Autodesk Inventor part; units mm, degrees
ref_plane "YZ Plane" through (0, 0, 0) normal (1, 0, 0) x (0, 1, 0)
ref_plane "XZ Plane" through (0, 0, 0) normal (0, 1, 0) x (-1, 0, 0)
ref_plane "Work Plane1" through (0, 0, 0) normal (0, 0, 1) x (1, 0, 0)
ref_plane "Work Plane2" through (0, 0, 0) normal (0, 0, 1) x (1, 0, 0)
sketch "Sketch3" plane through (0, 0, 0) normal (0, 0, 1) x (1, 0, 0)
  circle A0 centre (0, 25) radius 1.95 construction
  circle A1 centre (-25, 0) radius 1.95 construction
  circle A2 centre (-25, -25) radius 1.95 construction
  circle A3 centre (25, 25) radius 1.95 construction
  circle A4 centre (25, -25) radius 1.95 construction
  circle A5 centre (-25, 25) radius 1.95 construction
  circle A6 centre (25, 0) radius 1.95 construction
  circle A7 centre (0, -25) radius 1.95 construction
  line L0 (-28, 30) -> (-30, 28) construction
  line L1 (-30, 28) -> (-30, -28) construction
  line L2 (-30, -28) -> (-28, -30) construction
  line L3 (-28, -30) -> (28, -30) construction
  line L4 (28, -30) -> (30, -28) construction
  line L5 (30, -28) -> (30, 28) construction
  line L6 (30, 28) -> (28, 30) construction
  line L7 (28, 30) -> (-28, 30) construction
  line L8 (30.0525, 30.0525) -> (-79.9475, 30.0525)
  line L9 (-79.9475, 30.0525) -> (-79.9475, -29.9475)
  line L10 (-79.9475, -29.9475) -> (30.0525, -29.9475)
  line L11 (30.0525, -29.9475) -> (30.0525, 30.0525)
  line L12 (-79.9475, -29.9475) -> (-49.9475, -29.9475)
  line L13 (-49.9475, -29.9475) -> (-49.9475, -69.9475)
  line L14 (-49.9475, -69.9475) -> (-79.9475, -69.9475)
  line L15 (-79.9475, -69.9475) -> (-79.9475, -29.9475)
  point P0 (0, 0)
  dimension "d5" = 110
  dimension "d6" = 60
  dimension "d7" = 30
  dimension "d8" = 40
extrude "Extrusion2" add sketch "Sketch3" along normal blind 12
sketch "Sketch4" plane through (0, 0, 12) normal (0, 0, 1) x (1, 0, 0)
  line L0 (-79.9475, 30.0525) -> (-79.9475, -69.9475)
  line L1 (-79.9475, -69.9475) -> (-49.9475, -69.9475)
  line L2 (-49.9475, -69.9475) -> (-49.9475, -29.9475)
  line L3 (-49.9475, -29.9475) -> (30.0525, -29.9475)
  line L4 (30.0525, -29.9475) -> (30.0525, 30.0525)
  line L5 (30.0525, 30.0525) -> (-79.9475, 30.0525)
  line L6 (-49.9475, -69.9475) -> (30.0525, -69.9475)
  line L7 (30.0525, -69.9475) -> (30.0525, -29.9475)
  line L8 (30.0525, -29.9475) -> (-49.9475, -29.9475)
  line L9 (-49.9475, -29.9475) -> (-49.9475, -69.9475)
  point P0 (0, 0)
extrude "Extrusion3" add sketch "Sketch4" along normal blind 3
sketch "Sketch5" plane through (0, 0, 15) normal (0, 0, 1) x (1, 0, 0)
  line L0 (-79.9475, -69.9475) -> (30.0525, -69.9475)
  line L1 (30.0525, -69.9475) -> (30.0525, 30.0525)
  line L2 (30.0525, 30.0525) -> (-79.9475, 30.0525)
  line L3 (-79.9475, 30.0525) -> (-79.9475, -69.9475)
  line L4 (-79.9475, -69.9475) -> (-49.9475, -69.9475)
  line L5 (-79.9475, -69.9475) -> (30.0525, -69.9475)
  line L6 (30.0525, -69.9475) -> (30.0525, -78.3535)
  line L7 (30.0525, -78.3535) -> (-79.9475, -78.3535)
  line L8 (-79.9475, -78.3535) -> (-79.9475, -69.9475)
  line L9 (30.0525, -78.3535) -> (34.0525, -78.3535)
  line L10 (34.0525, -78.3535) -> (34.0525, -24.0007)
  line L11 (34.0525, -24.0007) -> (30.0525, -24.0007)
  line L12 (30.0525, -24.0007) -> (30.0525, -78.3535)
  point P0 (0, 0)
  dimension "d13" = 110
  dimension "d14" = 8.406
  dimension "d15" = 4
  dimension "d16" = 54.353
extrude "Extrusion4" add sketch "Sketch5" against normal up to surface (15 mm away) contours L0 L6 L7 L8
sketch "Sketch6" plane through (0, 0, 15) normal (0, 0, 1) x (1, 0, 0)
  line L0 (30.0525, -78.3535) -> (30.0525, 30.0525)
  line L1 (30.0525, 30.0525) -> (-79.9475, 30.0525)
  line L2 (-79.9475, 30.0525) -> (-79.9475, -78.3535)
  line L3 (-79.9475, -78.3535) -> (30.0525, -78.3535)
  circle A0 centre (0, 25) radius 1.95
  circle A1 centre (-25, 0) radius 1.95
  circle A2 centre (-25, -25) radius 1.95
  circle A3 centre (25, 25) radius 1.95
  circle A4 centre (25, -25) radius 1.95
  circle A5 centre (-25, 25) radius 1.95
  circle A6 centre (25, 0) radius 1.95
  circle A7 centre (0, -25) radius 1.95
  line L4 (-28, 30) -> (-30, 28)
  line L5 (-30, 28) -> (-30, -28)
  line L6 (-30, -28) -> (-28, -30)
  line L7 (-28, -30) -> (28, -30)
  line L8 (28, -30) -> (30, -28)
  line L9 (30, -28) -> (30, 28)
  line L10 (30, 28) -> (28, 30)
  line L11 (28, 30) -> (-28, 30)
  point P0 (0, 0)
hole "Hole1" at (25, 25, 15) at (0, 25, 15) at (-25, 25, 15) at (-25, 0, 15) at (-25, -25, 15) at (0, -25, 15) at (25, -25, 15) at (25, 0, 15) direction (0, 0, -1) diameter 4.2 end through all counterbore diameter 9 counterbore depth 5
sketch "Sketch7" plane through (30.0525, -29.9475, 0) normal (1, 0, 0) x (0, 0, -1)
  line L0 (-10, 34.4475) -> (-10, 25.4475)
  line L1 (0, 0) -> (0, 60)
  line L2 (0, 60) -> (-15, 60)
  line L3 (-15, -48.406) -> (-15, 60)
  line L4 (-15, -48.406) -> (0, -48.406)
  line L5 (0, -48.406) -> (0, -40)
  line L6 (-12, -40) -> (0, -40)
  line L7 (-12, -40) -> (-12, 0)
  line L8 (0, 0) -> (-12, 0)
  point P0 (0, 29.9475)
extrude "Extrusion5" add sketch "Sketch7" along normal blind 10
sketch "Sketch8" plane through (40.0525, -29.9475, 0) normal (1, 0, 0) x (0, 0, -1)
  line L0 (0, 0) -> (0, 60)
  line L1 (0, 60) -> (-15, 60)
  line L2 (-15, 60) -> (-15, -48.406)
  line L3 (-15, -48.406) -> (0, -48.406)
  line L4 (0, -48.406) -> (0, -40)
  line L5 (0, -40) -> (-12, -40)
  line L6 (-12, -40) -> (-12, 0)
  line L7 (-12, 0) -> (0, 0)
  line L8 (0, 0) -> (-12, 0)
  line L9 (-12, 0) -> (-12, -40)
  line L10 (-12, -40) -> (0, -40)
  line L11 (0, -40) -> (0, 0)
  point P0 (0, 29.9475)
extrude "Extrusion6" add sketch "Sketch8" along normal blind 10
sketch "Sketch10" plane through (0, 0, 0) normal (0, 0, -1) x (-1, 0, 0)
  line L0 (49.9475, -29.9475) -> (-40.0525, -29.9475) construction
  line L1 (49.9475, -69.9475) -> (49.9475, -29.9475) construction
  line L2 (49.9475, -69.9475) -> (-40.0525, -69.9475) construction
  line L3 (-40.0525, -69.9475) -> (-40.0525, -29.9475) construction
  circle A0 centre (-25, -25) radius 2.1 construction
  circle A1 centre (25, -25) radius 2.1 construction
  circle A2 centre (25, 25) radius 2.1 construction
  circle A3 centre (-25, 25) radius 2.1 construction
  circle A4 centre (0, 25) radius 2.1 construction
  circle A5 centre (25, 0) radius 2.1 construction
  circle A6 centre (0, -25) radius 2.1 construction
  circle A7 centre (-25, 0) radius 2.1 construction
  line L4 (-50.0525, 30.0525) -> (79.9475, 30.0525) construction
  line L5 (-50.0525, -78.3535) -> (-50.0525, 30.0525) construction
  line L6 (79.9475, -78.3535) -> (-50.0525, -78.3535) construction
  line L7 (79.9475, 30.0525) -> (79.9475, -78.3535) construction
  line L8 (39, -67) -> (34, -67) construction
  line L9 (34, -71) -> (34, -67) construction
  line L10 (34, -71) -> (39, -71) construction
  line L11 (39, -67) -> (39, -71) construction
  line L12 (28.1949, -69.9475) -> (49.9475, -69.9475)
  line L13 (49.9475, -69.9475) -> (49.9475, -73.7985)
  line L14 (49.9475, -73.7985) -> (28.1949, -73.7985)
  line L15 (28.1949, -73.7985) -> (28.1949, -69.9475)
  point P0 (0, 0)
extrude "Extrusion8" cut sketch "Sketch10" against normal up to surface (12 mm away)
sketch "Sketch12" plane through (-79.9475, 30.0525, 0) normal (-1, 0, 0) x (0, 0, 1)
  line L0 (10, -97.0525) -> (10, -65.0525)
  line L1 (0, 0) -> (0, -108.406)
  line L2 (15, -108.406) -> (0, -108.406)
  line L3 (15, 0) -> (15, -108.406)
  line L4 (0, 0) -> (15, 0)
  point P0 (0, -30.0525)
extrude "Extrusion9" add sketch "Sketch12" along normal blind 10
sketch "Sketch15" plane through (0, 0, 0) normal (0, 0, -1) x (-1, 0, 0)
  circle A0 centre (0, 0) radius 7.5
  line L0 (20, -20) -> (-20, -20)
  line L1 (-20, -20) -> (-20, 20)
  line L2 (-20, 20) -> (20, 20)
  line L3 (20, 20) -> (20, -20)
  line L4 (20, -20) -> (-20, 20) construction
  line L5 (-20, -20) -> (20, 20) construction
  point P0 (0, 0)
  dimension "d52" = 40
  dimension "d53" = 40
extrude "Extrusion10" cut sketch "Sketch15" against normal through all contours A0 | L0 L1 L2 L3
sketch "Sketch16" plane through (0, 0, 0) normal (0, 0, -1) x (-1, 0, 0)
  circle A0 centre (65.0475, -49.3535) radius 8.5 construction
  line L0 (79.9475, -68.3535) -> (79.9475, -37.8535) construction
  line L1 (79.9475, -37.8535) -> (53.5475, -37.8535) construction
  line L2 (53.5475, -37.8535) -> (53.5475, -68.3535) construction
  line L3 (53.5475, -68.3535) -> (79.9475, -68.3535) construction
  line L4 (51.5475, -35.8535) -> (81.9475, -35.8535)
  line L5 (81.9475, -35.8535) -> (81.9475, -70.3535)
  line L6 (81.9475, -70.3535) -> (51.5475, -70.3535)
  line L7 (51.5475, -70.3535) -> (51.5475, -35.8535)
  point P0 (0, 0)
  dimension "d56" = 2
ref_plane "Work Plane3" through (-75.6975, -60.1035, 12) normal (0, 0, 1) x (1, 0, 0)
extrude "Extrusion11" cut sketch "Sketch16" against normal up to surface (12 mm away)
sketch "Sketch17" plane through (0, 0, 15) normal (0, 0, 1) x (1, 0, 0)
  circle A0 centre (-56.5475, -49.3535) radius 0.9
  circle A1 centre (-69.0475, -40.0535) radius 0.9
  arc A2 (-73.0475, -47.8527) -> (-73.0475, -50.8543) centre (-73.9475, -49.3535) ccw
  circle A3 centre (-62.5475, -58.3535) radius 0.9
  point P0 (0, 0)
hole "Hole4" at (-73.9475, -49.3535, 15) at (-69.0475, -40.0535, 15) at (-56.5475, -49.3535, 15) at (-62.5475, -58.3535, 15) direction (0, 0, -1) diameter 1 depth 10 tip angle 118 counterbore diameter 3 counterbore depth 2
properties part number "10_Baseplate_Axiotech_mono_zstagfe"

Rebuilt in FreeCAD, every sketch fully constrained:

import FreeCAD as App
import Part
import Sketcher
Q = App.Units.Quantity

doc = App.newDocument("Part")
body = doc.addObject("PartDesign::Body", "Body")

sketch1 = body.newObject("Sketcher::SketchObject", "Sketch")
sketch1.AttachmentSupport = (doc.getObject("XY_Plane"), [""])
sketch1.MapMode = "FlatFace"
sketch1.addGeometry([
    Part.LineSegment(App.Vector(30.0525, -29.9475, 0), App.Vector(30.0525, 30.0525, 0)),
    Part.LineSegment(App.Vector(30.0525, 30.0525, 0), App.Vector(-79.9475, 30.0525, 0)),
    Part.LineSegment(App.Vector(-79.9475, 30.0525, 0), App.Vector(-79.9475, -69.9475, 0)),
    Part.LineSegment(App.Vector(-79.9475, -69.9475, 0), App.Vector(-49.9475, -69.9475, 0)),
    Part.LineSegment(App.Vector(-49.9475, -69.9475, 0), App.Vector(-49.9475, -29.9475, 0)),
    Part.LineSegment(App.Vector(-49.9475, -29.9475, 0), App.Vector(30.0525, -29.9475, 0)),
], False)
sketch1.addConstraint([
    Sketcher.Constraint("Coincident", 0, 2, 1, 1),
    Sketcher.Constraint("Coincident", 1, 2, 2, 1),
    Sketcher.Constraint("Coincident", 2, 2, 3, 1),
    Sketcher.Constraint("Coincident", 3, 2, 4, 1),
    Sketcher.Constraint("Coincident", 4, 2, 5, 1),
    Sketcher.Constraint("Coincident", 5, 2, 0, 1),
    Sketcher.Constraint("Vertical", 0),
    Sketcher.Constraint("Horizontal", 1),
    Sketcher.Constraint("Vertical", 2),
    Sketcher.Constraint("Horizontal", 3),
    Sketcher.Constraint("Vertical", 4),
    Sketcher.Constraint("Horizontal", 5),
    Sketcher.Constraint("DistanceX", 1, 2, 1, 1, Q("110 mm")),
    Sketcher.Constraint("DistanceX", 3, 1, 3, 2, Q("30 mm")),
    Sketcher.Constraint("DistanceY", 0, 1, 0, 2, Q("60 mm")),
    Sketcher.Constraint("DistanceY", 4, 1, 4, 2, Q("40 mm")),
    Sketcher.Constraint("DistanceX", -1, 1, 0, 2, Q("30.0525 mm")),
    Sketcher.Constraint("DistanceY", -1, 1, 0, 2, Q("30.0525 mm")),
])
pad1 = body.newObject("PartDesign::Pad", "Pad")
pad1.Profile = sketch1
pad1.Length = 12

sketch2 = body.newObject("Sketcher::SketchObject", "Sketch001")
sketch2.AttachmentSupport = (doc.getObject("XY_Plane"), [""])
sketch2.MapMode = "FlatFace"
sketch2.AttachmentOffset = App.Placement(App.Vector(0, 0, 12), App.Rotation())
sketch2.addGeometry([
    Part.LineSegment(App.Vector(30.0525, 30.0525, 0), App.Vector(-79.9475, 30.0525, 0)),
    Part.LineSegment(App.Vector(-79.9475, 30.0525, 0), App.Vector(-79.9475, -69.9475, 0)),
    Part.LineSegment(App.Vector(-79.9475, -69.9475, 0), App.Vector(30.0525, -69.9475, 0)),
    Part.LineSegment(App.Vector(30.0525, -69.9475, 0), App.Vector(30.0525, 30.0525, 0)),
], False)
sketch2.addConstraint([
    Sketcher.Constraint("Coincident", 0, 2, 1, 1),
    Sketcher.Constraint("Coincident", 1, 2, 2, 1),
    Sketcher.Constraint("Coincident", 2, 2, 3, 1),
    Sketcher.Constraint("Coincident", 3, 2, 0, 1),
    Sketcher.Constraint("Horizontal", 0),
    Sketcher.Constraint("Vertical", 1),
    Sketcher.Constraint("Horizontal", 2),
    Sketcher.Constraint("Vertical", 3),
    Sketcher.Constraint("DistanceX", 0, 2, 0, 1, Q("110 mm")),
    Sketcher.Constraint("DistanceY", 1, 2, 1, 1, Q("100 mm")),
    Sketcher.Constraint("DistanceX", 0, 2, -1, 1, Q("79.9475 mm")),
    Sketcher.Constraint("DistanceY", -1, 1, 0, 2, Q("30.0525 mm")),
])
pad2 = body.newObject("PartDesign::Pad", "Pad001")
pad2.Profile = sketch2
pad2.Length = 3

sketch3 = body.newObject("Sketcher::SketchObject", "Sketch002")
sketch3.AttachmentSupport = (doc.getObject("XY_Plane"), [""])
sketch3.MapMode = "FlatFace"
sketch3.AttachmentOffset = App.Placement(App.Vector(0, 0, 15), App.Rotation())
sketch3.addGeometry([
    Part.LineSegment(App.Vector(30.0525, -69.9475, 0), App.Vector(-79.9475, -69.9475, 0)),
    Part.LineSegment(App.Vector(-79.9475, -69.9475, 0), App.Vector(-79.9475, -78.3535, 0)),
    Part.LineSegment(App.Vector(-79.9475, -78.3535, 0), App.Vector(30.0525, -78.3535, 0)),
    Part.LineSegment(App.Vector(30.0525, -78.3535, 0), App.Vector(30.0525, -69.9475, 0)),
], False)
sketch3.addConstraint([
    Sketcher.Constraint("Coincident", 0, 2, 1, 1),
    Sketcher.Constraint("Coincident", 1, 2, 2, 1),
    Sketcher.Constraint("Coincident", 2, 2, 3, 1),
    Sketcher.Constraint("Coincident", 3, 2, 0, 1),
    Sketcher.Constraint("Horizontal", 0),
    Sketcher.Constraint("Vertical", 1),
    Sketcher.Constraint("Horizontal", 2),
    Sketcher.Constraint("Vertical", 3),
    Sketcher.Constraint("DistanceX", 0, 2, 0, 1, Q("110 mm")),
    Sketcher.Constraint("DistanceY", 1, 2, 1, 1, Q("8.406 mm")),
    Sketcher.Constraint("DistanceX", 0, 2, -1, 1, Q("79.9475 mm")),
    Sketcher.Constraint("DistanceY", 0, 2, -1, 1, Q("69.9475 mm")),
])
pad3 = body.newObject("PartDesign::Pad", "Pad002")
pad3.Profile = sketch3
pad3.Length = 15
pad3.Reversed = True

sketch4 = body.newObject("Sketcher::SketchObject", "Sketch003")
sketch4.AttachmentSupport = (doc.getObject("XY_Plane"), [""])
sketch4.MapMode = "FlatFace"
sketch4.AttachmentOffset = App.Placement(App.Vector(0, 0, 15), App.Rotation())
sketch4.addGeometry([
    Part.Circle(App.Vector(25, 25, 0), App.Vector(0, 0, 1), 2.1),
    Part.Circle(App.Vector(0, 25, 0), App.Vector(0, 0, 1), 2.1),
    Part.Circle(App.Vector(-25, 25, 0), App.Vector(0, 0, 1), 2.1),
    Part.Circle(App.Vector(-25, 0, 0), App.Vector(0, 0, 1), 2.1),
    Part.Circle(App.Vector(-25, -25, 0), App.Vector(0, 0, 1), 2.1),
    Part.Circle(App.Vector(0, -25, 0), App.Vector(0, 0, 1), 2.1),
    Part.Circle(App.Vector(25, -25, 0), App.Vector(0, 0, 1), 2.1),
    Part.Circle(App.Vector(25, 0, 0), App.Vector(0, 0, 1), 2.1),
], False)
sketch4.addConstraint([
    Sketcher.Constraint("Equal", 0, 1),
    Sketcher.Constraint("Equal", 1, 2),
    Sketcher.Constraint("Equal", 2, 3),
    Sketcher.Constraint("Equal", 3, 4),
    Sketcher.Constraint("Equal", 4, 5),
    Sketcher.Constraint("Equal", 5, 6),
    Sketcher.Constraint("Equal", 6, 7),
    Sketcher.Constraint("Symmetric", 0, 3, 4, 3, -1, 1),
    Sketcher.Constraint("Symmetric", 1, 3, 5, 3, -1, 1),
    Sketcher.Constraint("Symmetric", 2, 3, 6, 3, -1, 1),
    Sketcher.Constraint("Symmetric", 3, 3, 7, 3, -1, 1),
    Sketcher.Constraint("Symmetric", 0, 3, 2, 3, -2),
    Sketcher.Constraint("PointOnObject", 1, 3, -2),
    Sketcher.Constraint("PointOnObject", 3, 3, -1),
    Sketcher.Constraint("Horizontal", 0, 3, 1, 3),
    Sketcher.Constraint("Vertical", 2, 3, 3, 3),
    Sketcher.Constraint("Diameter", 0, Q("4.2 mm")),
    Sketcher.Constraint("DistanceX", -1, 1, 0, 3, Q("25 mm")),
    Sketcher.Constraint("DistanceY", -1, 1, 0, 3, Q("25 mm")),
])
doc.recompute()
hole = body.newObject("PartDesign::Hole", "Hole")
hole.Profile = sketch4
hole.ThreadType = "None"
hole.Diameter = 4.2
hole.DepthType = "ThroughAll"
hole.HoleCutType = "Counterbore"
hole.HoleCutDiameter = 9
hole.HoleCutDepth = 5

sketch5 = body.newObject("Sketcher::SketchObject", "Sketch004")
sketch5.AttachmentSupport = (doc.getObject("YZ_Plane"), [""])
sketch5.MapMode = "FlatFace"
sketch5.AttachmentOffset = App.Placement(App.Vector(0, 0, 30.0525), App.Rotation())
sketch5.addGeometry([
    Part.LineSegment(App.Vector(-29.9475, 12, 0), App.Vector(-29.9475, 0, 0)),
    Part.LineSegment(App.Vector(-29.9475, 0, 0), App.Vector(30.0525, 0, 0)),
    Part.LineSegment(App.Vector(30.0525, 0, 0), App.Vector(30.0525, 15, 0)),
    Part.LineSegment(App.Vector(30.0525, 15, 0), App.Vector(-78.3535, 15, 0)),
    Part.LineSegment(App.Vector(-78.3535, 15, 0), App.Vector(-78.3535, 0, 0)),
    Part.LineSegment(App.Vector(-78.3535, 0, 0), App.Vector(-69.9475, 0, 0)),
    Part.LineSegment(App.Vector(-69.9475, 0, 0), App.Vector(-69.9475, 12, 0)),
    Part.LineSegment(App.Vector(-69.9475, 12, 0), App.Vector(-29.9475, 12, 0)),
], False)
sketch5.addConstraint([
    Sketcher.Constraint("Coincident", 0, 2, 1, 1),
    Sketcher.Constraint("Coincident", 1, 2, 2, 1),
    Sketcher.Constraint("Coincident", 2, 2, 3, 1),
    Sketcher.Constraint("Coincident", 3, 2, 4, 1),
    Sketcher.Constraint("Coincident", 4, 2, 5, 1),
    Sketcher.Constraint("Coincident", 5, 2, 6, 1),
    Sketcher.Constraint("Coincident", 6, 2, 7, 1),
    Sketcher.Constraint("Coincident", 7, 2, 0, 1),
    Sketcher.Constraint("Vertical", 0),
    Sketcher.Constraint("Horizontal", 1),
    Sketcher.Constraint("Vertical", 2),
    Sketcher.Constraint("Horizontal", 3),
    Sketcher.Constraint("Vertical", 4),
    Sketcher.Constraint("Horizontal", 5),
    Sketcher.Constraint("Vertical", 6),
    Sketcher.Constraint("Horizontal", 7),
    Sketcher.Constraint("PointOnObject", 0, 2, -1),
    Sketcher.Constraint("PointOnObject", 4, 2, -1),
    Sketcher.Constraint("DistanceX", 1, 1, 1, 2, Q("60 mm")),
    Sketcher.Constraint("DistanceX", 7, 1, 7, 2, Q("40 mm")),
    Sketcher.Constraint("DistanceY", 0, 2, 0, 1, Q("12 mm")),
    Sketcher.Constraint("DistanceY", 2, 1, 2, 2, Q("15 mm")),
    Sketcher.Constraint("DistanceX", 3, 2, 3, 1, Q("108.406 mm")),
    Sketcher.Constraint("DistanceX", 0, 2, -1, 1, Q("29.9475 mm")),
])
pad4 = body.newObject("PartDesign::Pad", "Pad003")
pad4.Profile = sketch5
pad4.Length = 10

sketch6 = body.newObject("Sketcher::SketchObject", "Sketch005")
sketch6.AttachmentSupport = (doc.getObject("YZ_Plane"), [""])
sketch6.MapMode = "FlatFace"
sketch6.AttachmentOffset = App.Placement(App.Vector(0, 0, 40.0525), App.Rotation())
sketch6.addGeometry([
    Part.LineSegment(App.Vector(-78.3535, 0, 0), App.Vector(30.0525, 0, 0)),
    Part.LineSegment(App.Vector(30.0525, 0, 0), App.Vector(30.0525, 15, 0)),
    Part.LineSegment(App.Vector(30.0525, 15, 0), App.Vector(-78.3535, 15, 0)),
    Part.LineSegment(App.Vector(-78.3535, 15, 0), App.Vector(-78.3535, 0, 0)),
], False)
sketch6.addConstraint([
    Sketcher.Constraint("Coincident", 0, 2, 1, 1),
    Sketcher.Constraint("Coincident", 1, 2, 2, 1),
    Sketcher.Constraint("Coincident", 2, 2, 3, 1),
    Sketcher.Constraint("Coincident", 3, 2, 0, 1),
    Sketcher.Constraint("Horizontal", 0),
    Sketcher.Constraint("Vertical", 1),
    Sketcher.Constraint("Horizontal", 2),
    Sketcher.Constraint("Vertical", 3),
    Sketcher.Constraint("PointOnObject", 0, 2, -1),
    Sketcher.Constraint("DistanceY", 1, 1, 1, 2, Q("15 mm")),
    Sketcher.Constraint("DistanceX", 0, 1, 0, 2, Q("108.406 mm")),
    Sketcher.Constraint("DistanceX", -1, 1, 0, 2, Q("30.0525 mm")),
])
pad5 = body.newObject("PartDesign::Pad", "Pad004")
pad5.Profile = sketch6
pad5.Length = 10

sketch7 = body.newObject("Sketcher::SketchObject", "Sketch006")
sketch7.AttachmentSupport = (doc.getObject("XY_Plane"), [""])
sketch7.MapMode = "FlatFace"
sketch7.addGeometry([
    Part.LineSegment(App.Vector(-49.9475, -69.9475, 0), App.Vector(-28.1949, -69.9475, 0)),
    Part.LineSegment(App.Vector(-28.1949, -69.9475, 0), App.Vector(-28.1949, -73.7985, 0)),
    Part.LineSegment(App.Vector(-28.1949, -73.7985, 0), App.Vector(-49.9475, -73.7985, 0)),
    Part.LineSegment(App.Vector(-49.9475, -73.7985, 0), App.Vector(-49.9475, -69.9475, 0)),
], False)
sketch7.addConstraint([
    Sketcher.Constraint("Coincident", 0, 2, 1, 1),
    Sketcher.Constraint("Coincident", 1, 2, 2, 1),
    Sketcher.Constraint("Coincident", 2, 2, 3, 1),
    Sketcher.Constraint("Coincident", 3, 2, 0, 1),
    Sketcher.Constraint("Horizontal", 0),
    Sketcher.Constraint("Vertical", 1),
    Sketcher.Constraint("Horizontal", 2),
    Sketcher.Constraint("Vertical", 3),
    Sketcher.Constraint("DistanceY", 1, 2, 1, 1, Q("3.851 mm")),
    Sketcher.Constraint("DistanceX", 0, 1, 0, 2, Q("21.7526 mm")),
    Sketcher.Constraint("DistanceX", 0, 2, -1, 1, Q("28.195 mm")),
    Sketcher.Constraint("DistanceY", 0, 2, -1, 1, Q("69.9475 mm")),
])
pocket1 = body.newObject("PartDesign::Pocket", "Pocket")
pocket1.Profile = sketch7
pocket1.Length = 12
pocket1.Reversed = True

sketch8 = body.newObject("Sketcher::SketchObject", "Sketch007")
sketch8.AttachmentSupport = (doc.getObject("YZ_Plane"), [""])
sketch8.MapMode = "FlatFace"
sketch8.AttachmentOffset = App.Placement(App.Vector(0, 0, -79.9475), App.Rotation())
sketch8.addGeometry([
    Part.LineSegment(App.Vector(30.0525, 15, 0), App.Vector(30.0525, 0, 0)),
    Part.LineSegment(App.Vector(30.0525, 0, 0), App.Vector(-78.3535, 0, 0)),
    Part.LineSegment(App.Vector(-78.3535, 0, 0), App.Vector(-78.3535, 15, 0)),
    Part.LineSegment(App.Vector(-78.3535, 15, 0), App.Vector(30.0525, 15, 0)),
], False)
sketch8.addConstraint([
    Sketcher.Constraint("Coincident", 0, 2, 1, 1),
    Sketcher.Constraint("Coincident", 1, 2, 2, 1),
    Sketcher.Constraint("Coincident", 2, 2, 3, 1),
    Sketcher.Constraint("Coincident", 3, 2, 0, 1),
    Sketcher.Constraint("Vertical", 0),
    Sketcher.Constraint("Horizontal", 1),
    Sketcher.Constraint("Vertical", 2),
    Sketcher.Constraint("Horizontal", 3),
    Sketcher.Constraint("PointOnObject", 0, 2, -1),
    Sketcher.Constraint("DistanceY", 0, 2, 0, 1, Q("15 mm")),
    Sketcher.Constraint("DistanceX", 1, 2, 1, 1, Q("108.406 mm")),
    Sketcher.Constraint("DistanceX", -1, 1, 0, 2, Q("30.0525 mm")),
])
pad6 = body.newObject("PartDesign::Pad", "Pad005")
pad6.Profile = sketch8
pad6.Length = 10
pad6.Reversed = True

sketch9 = body.newObject("Sketcher::SketchObject", "Sketch008")
sketch9.AttachmentSupport = (doc.getObject("XY_Plane"), [""])
sketch9.MapMode = "FlatFace"
sketch9.addGeometry([
    Part.LineSegment(App.Vector(20, -20, 0), App.Vector(-20, -20, 0)),
    Part.LineSegment(App.Vector(-20, -20, 0), App.Vector(-20, 20, 0)),
    Part.LineSegment(App.Vector(-20, 20, 0), App.Vector(20, 20, 0)),
    Part.LineSegment(App.Vector(20, 20, 0), App.Vector(20, -20, 0)),
], False)
sketch9.addConstraint([
    Sketcher.Constraint("Coincident", 0, 2, 1, 1),
    Sketcher.Constraint("Coincident", 1, 2, 2, 1),
    Sketcher.Constraint("Coincident", 2, 2, 3, 1),
    Sketcher.Constraint("Coincident", 3, 2, 0, 1),
    Sketcher.Constraint("Horizontal", 0),
    Sketcher.Constraint("Vertical", 1),
    Sketcher.Constraint("Horizontal", 2),
    Sketcher.Constraint("Vertical", 3),
    Sketcher.Constraint("Symmetric", 0, 2, 2, 2, -1, 1),
    Sketcher.Constraint("Equal", 2, 1),
    Sketcher.Constraint("DistanceX", 0, 2, 0, 1, Q("40 mm")),
])
pocket2 = body.newObject("PartDesign::Pocket", "Pocket001")
pocket2.Profile = sketch9
pocket2.Type = "ThroughAll"
pocket2.Reversed = True

sketch10 = body.newObject("Sketcher::SketchObject", "Sketch009")
sketch10.AttachmentSupport = (doc.getObject("XY_Plane"), [""])
sketch10.MapMode = "FlatFace"
sketch10.addGeometry([
    Part.LineSegment(App.Vector(-81.9475, -35.8535, 0), App.Vector(-51.5475, -35.8535, 0)),
    Part.LineSegment(App.Vector(-51.5475, -35.8535, 0), App.Vector(-51.5475, -70.3535, 0)),
    Part.LineSegment(App.Vector(-51.5475, -70.3535, 0), App.Vector(-81.9475, -70.3535, 0)),
    Part.LineSegment(App.Vector(-81.9475, -70.3535, 0), App.Vector(-81.9475, -35.8535, 0)),
], False)
sketch10.addConstraint([
    Sketcher.Constraint("Coincident", 0, 2, 1, 1),
    Sketcher.Constraint("Coincident", 1, 2, 2, 1),
    Sketcher.Constraint("Coincident", 2, 2, 3, 1),
    Sketcher.Constraint("Coincident", 3, 2, 0, 1),
    Sketcher.Constraint("Horizontal", 0),
    Sketcher.Constraint("Vertical", 1),
    Sketcher.Constraint("Horizontal", 2),
    Sketcher.Constraint("Vertical", 3),
    Sketcher.Constraint("DistanceX", 0, 1, 0, 2, Q("30.4 mm")),
    Sketcher.Constraint("DistanceY", 1, 2, 1, 1, Q("34.5 mm")),
    Sketcher.Constraint("DistanceX", 0, 2, -1, 1, Q("51.5475 mm")),
    Sketcher.Constraint("DistanceY", 0, 2, -1, 1, Q("35.8535 mm")),
])
pocket3 = body.newObject("PartDesign::Pocket", "Pocket002")
pocket3.Profile = sketch10
pocket3.Length = 12
pocket3.Reversed = True

sketch11 = body.newObject("Sketcher::SketchObject", "Sketch010")
sketch11.AttachmentSupport = (doc.getObject("XY_Plane"), [""])
sketch11.MapMode = "FlatFace"
sketch11.AttachmentOffset = App.Placement(App.Vector(0, 0, 15), App.Rotation())
sketch11.addGeometry([
    Part.Circle(App.Vector(-73.9475, -49.3535, 0), App.Vector(0, 0, 1), 0.5),
    Part.Circle(App.Vector(-69.0475, -40.0535, 0), App.Vector(0, 0, 1), 0.5),
    Part.Circle(App.Vector(-56.5475, -49.3535, 0), App.Vector(0, 0, 1), 0.5),
    Part.Circle(App.Vector(-62.5475, -58.3535, 0), App.Vector(0, 0, 1), 0.5),
], False)
sketch11.addConstraint([
    Sketcher.Constraint("Equal", 0, 1),
    Sketcher.Constraint("Equal", 1, 2),
    Sketcher.Constraint("Equal", 2, 3),
    Sketcher.Constraint("Horizontal", 0, 3, 2, 3),
    Sketcher.Constraint("Diameter", 0, Q("1 mm")),
    Sketcher.Constraint("DistanceX", 3, 3, 2, 3, Q("6 mm")),
    Sketcher.Constraint("DistanceY", 3, 3, 2, 3, Q("9 mm")),
    Sketcher.Constraint("DistanceX", 0, 3, 1, 3, Q("4.9 mm")),
    Sketcher.Constraint("DistanceY", 0, 3, 1, 3, Q("9.3 mm")),
    Sketcher.Constraint("DistanceX", 1, 3, 2, 3, Q("12.5 mm")),
    Sketcher.Constraint("DistanceX", 0, 3, -1, 1, Q("73.9475 mm")),
    Sketcher.Constraint("DistanceY", 0, 3, -1, 1, Q("49.3535 mm")),
])
doc.recompute()
hole2 = body.newObject("PartDesign::Hole", "Hole001")
hole2.Profile = sketch11
hole2.ThreadType = "None"
hole2.Diameter = 1
hole2.DepthType = "Dimension"
hole2.Depth = 10
hole2.DrillPoint = "Angled"
hole2.DrillPointAngle = 118
hole2.HoleCutType = "Counterbore"
hole2.HoleCutDiameter = 3
hole2.HoleCutDepth = 2

doc.recompute()
